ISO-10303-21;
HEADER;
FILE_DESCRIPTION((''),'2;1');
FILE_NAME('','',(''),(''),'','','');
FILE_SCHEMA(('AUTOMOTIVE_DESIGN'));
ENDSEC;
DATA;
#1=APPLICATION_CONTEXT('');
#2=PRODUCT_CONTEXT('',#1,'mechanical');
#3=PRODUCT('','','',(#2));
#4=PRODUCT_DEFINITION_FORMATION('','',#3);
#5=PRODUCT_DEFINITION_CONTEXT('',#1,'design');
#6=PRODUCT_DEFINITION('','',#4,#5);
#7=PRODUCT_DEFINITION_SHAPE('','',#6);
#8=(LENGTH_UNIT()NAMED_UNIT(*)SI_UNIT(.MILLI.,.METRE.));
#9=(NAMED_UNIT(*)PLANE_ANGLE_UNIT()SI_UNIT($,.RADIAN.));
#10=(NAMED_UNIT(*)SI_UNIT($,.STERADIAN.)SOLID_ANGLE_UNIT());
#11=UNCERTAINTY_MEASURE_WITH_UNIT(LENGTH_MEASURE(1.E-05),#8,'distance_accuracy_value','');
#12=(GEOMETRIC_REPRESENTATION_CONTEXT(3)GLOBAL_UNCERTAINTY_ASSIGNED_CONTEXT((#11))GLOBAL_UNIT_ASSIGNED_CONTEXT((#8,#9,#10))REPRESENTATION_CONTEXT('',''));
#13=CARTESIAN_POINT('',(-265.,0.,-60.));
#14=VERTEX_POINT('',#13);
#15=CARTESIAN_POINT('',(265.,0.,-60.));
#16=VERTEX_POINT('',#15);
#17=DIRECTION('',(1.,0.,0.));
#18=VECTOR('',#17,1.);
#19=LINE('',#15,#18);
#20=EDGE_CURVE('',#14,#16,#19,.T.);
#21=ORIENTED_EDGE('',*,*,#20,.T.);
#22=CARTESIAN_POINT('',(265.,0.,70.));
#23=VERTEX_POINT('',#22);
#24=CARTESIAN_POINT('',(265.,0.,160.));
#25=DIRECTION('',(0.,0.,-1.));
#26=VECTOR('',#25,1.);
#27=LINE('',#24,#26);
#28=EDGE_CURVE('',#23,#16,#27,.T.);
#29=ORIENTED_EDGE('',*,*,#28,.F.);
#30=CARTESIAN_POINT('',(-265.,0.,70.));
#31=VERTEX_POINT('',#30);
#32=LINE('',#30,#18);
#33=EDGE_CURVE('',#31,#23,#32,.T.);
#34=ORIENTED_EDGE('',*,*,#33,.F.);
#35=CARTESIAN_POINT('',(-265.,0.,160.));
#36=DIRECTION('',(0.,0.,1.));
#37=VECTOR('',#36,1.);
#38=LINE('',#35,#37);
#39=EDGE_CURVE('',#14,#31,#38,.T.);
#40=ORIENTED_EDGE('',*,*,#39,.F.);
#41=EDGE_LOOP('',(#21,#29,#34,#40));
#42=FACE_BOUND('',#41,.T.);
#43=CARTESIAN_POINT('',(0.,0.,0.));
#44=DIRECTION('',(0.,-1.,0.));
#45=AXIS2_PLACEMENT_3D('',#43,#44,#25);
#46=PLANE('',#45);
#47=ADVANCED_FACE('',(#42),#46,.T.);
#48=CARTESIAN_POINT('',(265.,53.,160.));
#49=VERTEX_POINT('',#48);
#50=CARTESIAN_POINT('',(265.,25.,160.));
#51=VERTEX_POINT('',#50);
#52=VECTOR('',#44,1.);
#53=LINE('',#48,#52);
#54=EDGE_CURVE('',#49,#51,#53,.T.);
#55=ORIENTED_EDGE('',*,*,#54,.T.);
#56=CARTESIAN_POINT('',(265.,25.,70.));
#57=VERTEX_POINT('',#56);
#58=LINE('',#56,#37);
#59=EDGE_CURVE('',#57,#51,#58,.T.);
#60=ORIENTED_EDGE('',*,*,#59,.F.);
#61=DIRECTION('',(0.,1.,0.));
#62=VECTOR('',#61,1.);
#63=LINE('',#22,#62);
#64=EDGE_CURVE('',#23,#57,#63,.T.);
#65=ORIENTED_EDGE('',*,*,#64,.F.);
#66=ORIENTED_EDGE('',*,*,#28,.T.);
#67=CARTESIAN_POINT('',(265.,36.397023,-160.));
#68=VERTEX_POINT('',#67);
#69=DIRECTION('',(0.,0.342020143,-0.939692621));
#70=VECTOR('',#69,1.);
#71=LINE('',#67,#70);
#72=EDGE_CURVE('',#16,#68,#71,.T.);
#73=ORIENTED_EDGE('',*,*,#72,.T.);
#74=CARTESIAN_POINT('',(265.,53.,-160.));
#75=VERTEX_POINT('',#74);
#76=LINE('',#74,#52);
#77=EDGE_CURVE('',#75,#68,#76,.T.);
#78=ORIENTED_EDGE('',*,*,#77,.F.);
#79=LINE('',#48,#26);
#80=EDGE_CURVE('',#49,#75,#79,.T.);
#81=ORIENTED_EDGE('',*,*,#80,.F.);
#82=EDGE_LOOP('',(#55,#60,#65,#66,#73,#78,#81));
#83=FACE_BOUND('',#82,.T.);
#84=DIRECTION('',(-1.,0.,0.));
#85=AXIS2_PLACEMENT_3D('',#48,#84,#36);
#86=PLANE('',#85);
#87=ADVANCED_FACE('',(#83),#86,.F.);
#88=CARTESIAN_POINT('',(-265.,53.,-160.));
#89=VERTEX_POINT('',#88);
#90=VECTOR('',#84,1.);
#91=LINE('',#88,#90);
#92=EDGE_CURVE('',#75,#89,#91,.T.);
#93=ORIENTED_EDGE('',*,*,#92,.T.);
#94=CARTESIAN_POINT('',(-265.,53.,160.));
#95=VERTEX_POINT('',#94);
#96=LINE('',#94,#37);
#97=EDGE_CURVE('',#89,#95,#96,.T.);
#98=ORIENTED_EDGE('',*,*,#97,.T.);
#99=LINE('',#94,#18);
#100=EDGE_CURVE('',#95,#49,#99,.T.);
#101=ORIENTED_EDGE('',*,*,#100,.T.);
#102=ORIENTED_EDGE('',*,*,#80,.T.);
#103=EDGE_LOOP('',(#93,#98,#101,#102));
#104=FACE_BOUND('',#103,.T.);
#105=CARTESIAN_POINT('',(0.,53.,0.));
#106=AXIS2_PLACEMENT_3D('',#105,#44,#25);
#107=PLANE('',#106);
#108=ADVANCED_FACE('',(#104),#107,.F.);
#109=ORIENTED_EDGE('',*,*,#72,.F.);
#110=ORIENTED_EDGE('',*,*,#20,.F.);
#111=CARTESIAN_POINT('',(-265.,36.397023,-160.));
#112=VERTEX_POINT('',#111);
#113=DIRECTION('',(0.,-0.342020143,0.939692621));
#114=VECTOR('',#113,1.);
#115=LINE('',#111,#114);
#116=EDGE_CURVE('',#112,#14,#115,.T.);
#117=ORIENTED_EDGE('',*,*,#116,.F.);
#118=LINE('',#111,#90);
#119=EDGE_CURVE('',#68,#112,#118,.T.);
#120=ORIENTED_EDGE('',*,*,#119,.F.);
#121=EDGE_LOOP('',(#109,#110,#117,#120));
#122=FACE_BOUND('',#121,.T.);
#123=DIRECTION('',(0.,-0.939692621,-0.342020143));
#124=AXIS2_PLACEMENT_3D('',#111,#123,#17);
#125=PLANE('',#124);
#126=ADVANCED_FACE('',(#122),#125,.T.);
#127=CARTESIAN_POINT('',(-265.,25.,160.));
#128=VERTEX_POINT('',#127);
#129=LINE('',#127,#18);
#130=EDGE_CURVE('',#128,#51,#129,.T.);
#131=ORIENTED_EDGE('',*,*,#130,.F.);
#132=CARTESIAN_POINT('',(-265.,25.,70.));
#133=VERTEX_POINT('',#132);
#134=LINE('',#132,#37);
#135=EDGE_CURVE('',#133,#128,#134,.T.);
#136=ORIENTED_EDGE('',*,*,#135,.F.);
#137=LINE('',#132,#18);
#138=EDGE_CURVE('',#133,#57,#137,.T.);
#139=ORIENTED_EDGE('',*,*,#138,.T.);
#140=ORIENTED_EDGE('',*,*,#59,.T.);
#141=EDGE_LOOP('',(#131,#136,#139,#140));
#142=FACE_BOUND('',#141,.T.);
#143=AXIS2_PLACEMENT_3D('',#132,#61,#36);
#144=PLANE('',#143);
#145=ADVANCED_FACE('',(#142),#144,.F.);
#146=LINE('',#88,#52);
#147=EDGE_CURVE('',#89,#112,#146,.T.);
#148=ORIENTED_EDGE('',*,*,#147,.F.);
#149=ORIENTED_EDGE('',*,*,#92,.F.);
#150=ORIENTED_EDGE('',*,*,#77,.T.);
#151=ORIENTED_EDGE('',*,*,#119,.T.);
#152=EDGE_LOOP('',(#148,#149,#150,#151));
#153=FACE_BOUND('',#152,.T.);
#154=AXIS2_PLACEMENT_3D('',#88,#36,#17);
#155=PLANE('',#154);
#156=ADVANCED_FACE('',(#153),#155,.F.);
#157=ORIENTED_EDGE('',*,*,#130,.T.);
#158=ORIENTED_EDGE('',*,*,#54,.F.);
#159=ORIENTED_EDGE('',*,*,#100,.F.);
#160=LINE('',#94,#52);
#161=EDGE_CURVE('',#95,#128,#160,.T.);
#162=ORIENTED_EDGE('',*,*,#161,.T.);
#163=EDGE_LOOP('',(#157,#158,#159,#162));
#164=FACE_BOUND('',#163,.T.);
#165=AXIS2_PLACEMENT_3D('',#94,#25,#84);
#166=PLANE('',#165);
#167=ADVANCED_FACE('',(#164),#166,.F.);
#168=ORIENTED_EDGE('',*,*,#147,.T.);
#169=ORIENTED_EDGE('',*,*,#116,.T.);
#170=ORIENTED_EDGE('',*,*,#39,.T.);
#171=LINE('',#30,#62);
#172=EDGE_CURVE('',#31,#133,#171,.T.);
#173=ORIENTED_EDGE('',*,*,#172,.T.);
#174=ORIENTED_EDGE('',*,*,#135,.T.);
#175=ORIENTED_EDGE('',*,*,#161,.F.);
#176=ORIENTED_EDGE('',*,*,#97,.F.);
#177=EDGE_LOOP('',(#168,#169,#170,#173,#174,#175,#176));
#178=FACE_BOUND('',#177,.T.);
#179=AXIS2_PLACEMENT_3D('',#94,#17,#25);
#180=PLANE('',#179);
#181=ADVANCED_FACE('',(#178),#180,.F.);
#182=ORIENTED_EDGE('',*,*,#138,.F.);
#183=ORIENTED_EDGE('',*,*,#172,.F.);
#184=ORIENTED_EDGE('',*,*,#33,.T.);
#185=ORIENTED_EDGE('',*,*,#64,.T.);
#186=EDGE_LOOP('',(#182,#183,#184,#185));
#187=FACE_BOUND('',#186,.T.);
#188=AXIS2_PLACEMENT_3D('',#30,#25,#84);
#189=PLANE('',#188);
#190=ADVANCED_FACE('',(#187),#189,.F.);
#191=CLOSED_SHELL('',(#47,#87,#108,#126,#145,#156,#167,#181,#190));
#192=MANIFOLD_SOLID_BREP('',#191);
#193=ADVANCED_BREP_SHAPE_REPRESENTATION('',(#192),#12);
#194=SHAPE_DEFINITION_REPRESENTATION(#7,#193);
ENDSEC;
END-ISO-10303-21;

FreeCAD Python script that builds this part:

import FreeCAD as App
import Part
import Sketcher
Q = App.Units.Quantity


def edges_at(feature, points):
    """Names of the edges that pass closest to the given points."""
    edges = feature.Shape.Edges
    near = lambda p: min(range(len(edges)), key=lambda i: edges[i].distToShape(Part.Vertex(*p))[0])
    return sorted({f"Edge{near(p) + 1}" for p in points})

doc = App.newDocument("Part")
body = doc.addObject("PartDesign::Body", "Body")

sketch1 = doc.addObject("Sketcher::SketchObject", "Sketch")
body.addObject(sketch1)
sketch1.AttachmentSupport = (doc.XZ_Plane, [""])
sketch1.MapMode = "FlatFace"
sketch1.addGeometry([
    Part.LineSegment(App.Vector(-265, -160, 0), App.Vector(-265, 160, 0)),
    Part.LineSegment(App.Vector(-265, 160, 0), App.Vector(265, 160, 0)),
    Part.LineSegment(App.Vector(265, 160, 0), App.Vector(265, -160, 0)),
    Part.LineSegment(App.Vector(265, -160, 0), App.Vector(-265, -160, 0)),
], False)
sketch1.addConstraint([
    Sketcher.Constraint("Coincident", 0, 2, 1, 1),
    Sketcher.Constraint("Coincident", 1, 2, 2, 1),
    Sketcher.Constraint("Coincident", 2, 2, 3, 1),
    Sketcher.Constraint("Coincident", 3, 2, 0, 1),
    Sketcher.Constraint("Vertical", 0),
    Sketcher.Constraint("Horizontal", 1),
    Sketcher.Constraint("Vertical", 2),
    Sketcher.Constraint("Horizontal", 3),
    Sketcher.Constraint("Symmetric", 0, 2, 2, 2, -1, 1),
    Sketcher.Constraint("DistanceX", 1, 1, 1, 2, Q("530 mm")),
    Sketcher.Constraint("DistanceY", 0, 1, 0, 2, Q("320 mm")),
])
pad1 = doc.addObject("PartDesign::Pad", "Pad")
body.addObject(pad1)
pad1.Profile = sketch1
pad1.Length = 53
pad1.Reversed = True
doc.recompute()

chamfer = doc.addObject("PartDesign::Chamfer", "Chamfer")
body.addObject(chamfer)
chamfer.Base = (pad1, edges_at(pad1, [(0, 0, -160)]))
chamfer.ChamferType = "Two distances"
chamfer.Size = 100
chamfer.Size2 = 36.397023
chamfer.FlipDirection = True

sketch2 = doc.addObject("Sketcher::SketchObject", "Sketch001")
body.addObject(sketch2)
sketch2.AttachmentSupport = (doc.YZ_Plane, [""])
sketch2.MapMode = "FlatFace"
sketch2.AttachmentOffset = App.Placement(App.Vector(0, 0, 265), App.Rotation())
sketch2.addGeometry([
    Part.LineSegment(App.Vector(25, 160, 0), App.Vector(0, 160, 0)),
    Part.LineSegment(App.Vector(0, 160, 0), App.Vector(0, 70, 0)),
    Part.LineSegment(App.Vector(0, 70, 0), App.Vector(25, 70, 0)),
    Part.LineSegment(App.Vector(25, 70, 0), App.Vector(25, 160, 0)),
], False)
sketch2.addConstraint([
    Sketcher.Constraint("Coincident", 0, 2, 1, 1),
    Sketcher.Constraint("Coincident", 1, 2, 2, 1),
    Sketcher.Constraint("Coincident", 2, 2, 3, 1),
    Sketcher.Constraint("Coincident", 3, 2, 0, 1),
    Sketcher.Constraint("Horizontal", 0),
    Sketcher.Constraint("Vertical", 1),
    Sketcher.Constraint("Horizontal", 2),
    Sketcher.Constraint("Vertical", 3),
    Sketcher.Constraint("PointOnObject", 0, 2, -2),
    Sketcher.Constraint("DistanceX", 0, 2, 0, 1, Q("25 mm")),
    Sketcher.Constraint("DistanceY", 1, 2, 1, 1, Q("90 mm")),
    Sketcher.Constraint("DistanceY", -1, 1, 0, 2, Q("160 mm")),
])
pocket1 = doc.addObject("PartDesign::Pocket", "Pocket")
body.addObject(pocket1)
pocket1.Profile = sketch2
pocket1.Length = 530

doc.recompute()
